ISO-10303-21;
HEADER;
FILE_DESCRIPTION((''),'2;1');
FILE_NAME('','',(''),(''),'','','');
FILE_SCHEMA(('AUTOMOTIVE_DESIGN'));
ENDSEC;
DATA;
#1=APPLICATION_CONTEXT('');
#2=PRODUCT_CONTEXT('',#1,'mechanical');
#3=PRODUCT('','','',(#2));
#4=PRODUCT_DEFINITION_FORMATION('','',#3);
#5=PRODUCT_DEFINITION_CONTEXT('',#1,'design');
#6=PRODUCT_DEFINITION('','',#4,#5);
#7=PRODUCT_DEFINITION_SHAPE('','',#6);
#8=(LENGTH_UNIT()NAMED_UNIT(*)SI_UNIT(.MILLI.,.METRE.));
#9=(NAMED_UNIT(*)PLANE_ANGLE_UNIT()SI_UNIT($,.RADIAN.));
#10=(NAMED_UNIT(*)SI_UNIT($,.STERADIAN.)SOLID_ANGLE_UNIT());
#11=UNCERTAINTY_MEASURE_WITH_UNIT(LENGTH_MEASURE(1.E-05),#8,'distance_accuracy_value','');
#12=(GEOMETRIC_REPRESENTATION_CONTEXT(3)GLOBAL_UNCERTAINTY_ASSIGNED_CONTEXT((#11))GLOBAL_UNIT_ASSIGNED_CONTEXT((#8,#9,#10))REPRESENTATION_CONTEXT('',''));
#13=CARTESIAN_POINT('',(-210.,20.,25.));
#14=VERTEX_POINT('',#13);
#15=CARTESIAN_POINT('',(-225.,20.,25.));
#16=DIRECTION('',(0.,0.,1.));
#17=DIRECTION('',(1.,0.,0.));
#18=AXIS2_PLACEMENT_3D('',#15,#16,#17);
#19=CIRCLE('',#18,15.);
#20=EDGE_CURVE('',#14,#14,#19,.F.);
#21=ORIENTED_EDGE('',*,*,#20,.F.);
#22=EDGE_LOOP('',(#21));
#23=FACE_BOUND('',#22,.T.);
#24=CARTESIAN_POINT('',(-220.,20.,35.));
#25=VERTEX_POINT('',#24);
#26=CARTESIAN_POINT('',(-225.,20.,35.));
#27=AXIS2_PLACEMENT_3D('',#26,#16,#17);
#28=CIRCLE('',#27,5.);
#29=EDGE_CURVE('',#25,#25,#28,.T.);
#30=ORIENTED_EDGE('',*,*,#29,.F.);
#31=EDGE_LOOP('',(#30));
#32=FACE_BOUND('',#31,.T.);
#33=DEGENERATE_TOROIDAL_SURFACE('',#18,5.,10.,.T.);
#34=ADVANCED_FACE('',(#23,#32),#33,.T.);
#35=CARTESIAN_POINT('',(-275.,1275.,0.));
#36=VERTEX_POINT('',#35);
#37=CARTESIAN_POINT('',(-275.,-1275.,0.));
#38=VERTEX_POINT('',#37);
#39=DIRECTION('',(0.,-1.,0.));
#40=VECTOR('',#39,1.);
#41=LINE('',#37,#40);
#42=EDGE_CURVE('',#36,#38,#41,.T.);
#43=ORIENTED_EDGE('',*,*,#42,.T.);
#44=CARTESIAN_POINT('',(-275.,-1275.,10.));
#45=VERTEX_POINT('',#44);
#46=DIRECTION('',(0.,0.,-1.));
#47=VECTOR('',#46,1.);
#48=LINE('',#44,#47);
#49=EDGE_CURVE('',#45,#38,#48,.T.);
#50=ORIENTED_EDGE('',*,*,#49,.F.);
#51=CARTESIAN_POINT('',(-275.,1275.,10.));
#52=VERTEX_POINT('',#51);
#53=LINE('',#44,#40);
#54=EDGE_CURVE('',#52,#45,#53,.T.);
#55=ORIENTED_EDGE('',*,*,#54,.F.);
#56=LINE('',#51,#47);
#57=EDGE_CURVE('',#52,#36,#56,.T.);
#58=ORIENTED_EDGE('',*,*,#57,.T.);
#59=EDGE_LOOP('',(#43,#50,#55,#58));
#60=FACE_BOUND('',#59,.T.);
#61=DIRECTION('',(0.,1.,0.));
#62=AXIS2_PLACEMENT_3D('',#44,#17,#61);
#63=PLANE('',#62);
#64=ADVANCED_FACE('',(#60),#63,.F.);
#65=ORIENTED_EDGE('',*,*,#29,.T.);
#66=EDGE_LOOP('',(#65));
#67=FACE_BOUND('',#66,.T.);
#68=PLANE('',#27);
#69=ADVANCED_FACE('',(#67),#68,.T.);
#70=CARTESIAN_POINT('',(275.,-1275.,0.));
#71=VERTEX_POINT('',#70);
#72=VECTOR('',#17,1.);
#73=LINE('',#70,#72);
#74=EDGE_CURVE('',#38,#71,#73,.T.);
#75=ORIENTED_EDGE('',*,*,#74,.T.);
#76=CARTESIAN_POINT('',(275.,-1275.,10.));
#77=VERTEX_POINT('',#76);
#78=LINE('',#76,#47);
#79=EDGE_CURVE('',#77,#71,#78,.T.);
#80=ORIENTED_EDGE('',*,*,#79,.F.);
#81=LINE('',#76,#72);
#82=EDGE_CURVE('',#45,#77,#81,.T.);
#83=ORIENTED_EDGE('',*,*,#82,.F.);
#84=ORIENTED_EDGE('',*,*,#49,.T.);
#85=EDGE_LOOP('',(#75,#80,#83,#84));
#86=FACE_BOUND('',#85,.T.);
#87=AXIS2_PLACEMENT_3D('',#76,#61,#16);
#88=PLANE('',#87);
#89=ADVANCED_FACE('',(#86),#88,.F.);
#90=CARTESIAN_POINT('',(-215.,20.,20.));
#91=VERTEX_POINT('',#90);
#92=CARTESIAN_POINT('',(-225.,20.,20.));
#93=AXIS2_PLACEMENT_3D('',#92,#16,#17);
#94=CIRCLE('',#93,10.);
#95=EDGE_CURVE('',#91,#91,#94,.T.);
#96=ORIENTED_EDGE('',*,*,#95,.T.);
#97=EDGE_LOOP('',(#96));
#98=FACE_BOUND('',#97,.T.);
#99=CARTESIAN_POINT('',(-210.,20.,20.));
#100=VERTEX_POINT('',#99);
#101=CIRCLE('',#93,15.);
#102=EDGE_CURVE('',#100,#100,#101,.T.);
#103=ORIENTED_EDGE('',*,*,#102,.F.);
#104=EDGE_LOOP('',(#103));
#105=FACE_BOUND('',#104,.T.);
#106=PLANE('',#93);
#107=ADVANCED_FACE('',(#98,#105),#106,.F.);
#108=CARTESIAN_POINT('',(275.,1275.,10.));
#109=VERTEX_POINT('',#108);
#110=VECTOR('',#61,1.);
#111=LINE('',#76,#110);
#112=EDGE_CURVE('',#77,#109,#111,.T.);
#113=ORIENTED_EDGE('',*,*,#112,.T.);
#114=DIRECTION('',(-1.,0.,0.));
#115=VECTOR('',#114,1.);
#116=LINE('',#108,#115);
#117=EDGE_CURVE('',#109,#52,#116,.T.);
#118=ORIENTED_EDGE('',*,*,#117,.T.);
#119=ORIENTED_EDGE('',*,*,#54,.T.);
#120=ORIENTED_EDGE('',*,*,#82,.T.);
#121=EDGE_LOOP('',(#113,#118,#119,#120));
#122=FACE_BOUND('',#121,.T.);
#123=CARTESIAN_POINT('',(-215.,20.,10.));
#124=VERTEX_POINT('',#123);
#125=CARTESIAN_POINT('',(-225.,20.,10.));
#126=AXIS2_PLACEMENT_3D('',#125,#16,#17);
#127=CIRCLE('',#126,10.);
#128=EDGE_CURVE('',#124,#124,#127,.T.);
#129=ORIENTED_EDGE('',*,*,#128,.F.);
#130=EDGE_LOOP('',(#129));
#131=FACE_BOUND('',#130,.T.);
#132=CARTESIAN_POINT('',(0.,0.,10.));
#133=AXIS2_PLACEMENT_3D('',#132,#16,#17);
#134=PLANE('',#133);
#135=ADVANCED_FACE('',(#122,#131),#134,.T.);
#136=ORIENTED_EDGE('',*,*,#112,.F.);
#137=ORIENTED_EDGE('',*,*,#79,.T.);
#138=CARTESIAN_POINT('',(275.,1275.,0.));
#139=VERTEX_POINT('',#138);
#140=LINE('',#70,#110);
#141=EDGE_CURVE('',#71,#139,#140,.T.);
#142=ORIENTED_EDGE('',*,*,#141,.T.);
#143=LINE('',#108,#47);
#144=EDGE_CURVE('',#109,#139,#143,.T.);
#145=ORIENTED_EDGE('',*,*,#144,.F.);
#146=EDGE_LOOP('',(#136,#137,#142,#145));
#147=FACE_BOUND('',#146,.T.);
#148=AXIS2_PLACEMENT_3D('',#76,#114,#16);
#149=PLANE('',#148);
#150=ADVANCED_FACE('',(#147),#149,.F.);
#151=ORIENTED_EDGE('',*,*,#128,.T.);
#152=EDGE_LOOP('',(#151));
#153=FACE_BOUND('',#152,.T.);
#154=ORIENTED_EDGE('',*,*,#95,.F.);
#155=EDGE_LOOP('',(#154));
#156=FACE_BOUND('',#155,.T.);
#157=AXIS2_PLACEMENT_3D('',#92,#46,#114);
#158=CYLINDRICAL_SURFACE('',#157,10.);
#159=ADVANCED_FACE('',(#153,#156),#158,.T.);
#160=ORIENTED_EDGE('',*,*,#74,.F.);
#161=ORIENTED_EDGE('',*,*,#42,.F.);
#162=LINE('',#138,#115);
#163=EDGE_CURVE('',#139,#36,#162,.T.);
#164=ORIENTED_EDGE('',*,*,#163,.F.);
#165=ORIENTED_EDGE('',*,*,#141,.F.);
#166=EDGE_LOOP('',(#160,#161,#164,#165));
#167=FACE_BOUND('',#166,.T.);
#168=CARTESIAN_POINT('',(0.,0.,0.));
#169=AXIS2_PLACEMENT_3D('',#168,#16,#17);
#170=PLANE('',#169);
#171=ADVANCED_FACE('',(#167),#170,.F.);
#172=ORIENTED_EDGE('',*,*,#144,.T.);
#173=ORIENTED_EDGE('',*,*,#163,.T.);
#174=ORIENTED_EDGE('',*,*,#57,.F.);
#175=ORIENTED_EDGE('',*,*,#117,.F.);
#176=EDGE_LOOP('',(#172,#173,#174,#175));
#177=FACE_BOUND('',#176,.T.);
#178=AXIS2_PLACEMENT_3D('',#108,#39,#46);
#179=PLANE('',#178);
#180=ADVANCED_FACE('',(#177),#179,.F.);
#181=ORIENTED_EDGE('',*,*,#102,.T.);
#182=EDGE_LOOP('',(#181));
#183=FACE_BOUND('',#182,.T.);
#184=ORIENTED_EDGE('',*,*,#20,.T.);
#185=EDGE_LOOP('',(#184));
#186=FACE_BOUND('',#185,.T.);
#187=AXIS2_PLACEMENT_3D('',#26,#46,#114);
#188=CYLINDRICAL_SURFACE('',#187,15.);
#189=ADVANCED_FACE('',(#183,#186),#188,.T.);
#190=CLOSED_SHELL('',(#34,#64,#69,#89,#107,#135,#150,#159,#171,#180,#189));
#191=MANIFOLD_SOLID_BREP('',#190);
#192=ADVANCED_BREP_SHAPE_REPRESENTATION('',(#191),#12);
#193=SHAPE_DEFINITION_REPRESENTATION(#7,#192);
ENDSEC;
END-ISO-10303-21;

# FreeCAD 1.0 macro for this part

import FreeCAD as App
import Part
import Sketcher
Q = App.Units.Quantity


def edges_at(feature, points):
    """Names of the edges that pass closest to the given points."""
    edges = feature.Shape.Edges
    near = lambda p: min(range(len(edges)), key=lambda i: edges[i].distToShape(Part.Vertex(*p))[0])
    return sorted({f"Edge{near(p) + 1}" for p in points})


def add_polygon(sketch, points):
    """Adds a closed chain of lines whose ends are joined by coincident constraints."""
    first, n = sketch.GeometryCount, len(points)
    for a, b in zip(points, points[1:] + points[:1]):
        sketch.addGeometry(Part.LineSegment(App.Vector(*a, 0), App.Vector(*b, 0)), False)
    for i in range(n):
        sketch.addConstraint(Sketcher.Constraint("Coincident", first + i, 2, first + (i + 1) % n, 1))

doc = App.newDocument("Part")
body = doc.addObject("PartDesign::Body", "Body")

# Sketch on XY plane
sketch1 = body.newObject("Sketcher::SketchObject", "Sketch")
sketch1.AttachmentSupport = (doc.getObject("XY_Plane"), [""])
sketch1.MapMode = "FlatFace"
add_polygon(sketch1, [(-275, 1275), (-275, -1275), (275, -1275), (275, 1275)])  # lines 0-3
sketch1.addConstraint(Sketcher.Constraint("Vertical", 0))
sketch1.addConstraint(Sketcher.Constraint("Horizontal", 1))
sketch1.addConstraint(Sketcher.Constraint("Vertical", 2))
sketch1.addConstraint(Sketcher.Constraint("Horizontal", 3))
sketch1.addConstraint(Sketcher.Constraint("Symmetric", 0, 2, 2, 2, -1, 1))
sketch1.addConstraint(Sketcher.Constraint("DistanceX", 1, 1, 1, 2, Q("550 mm")))
sketch1.addConstraint(Sketcher.Constraint("DistanceY", 0, 2, 0, 1, Q("2550 mm")))
pad1 = body.newObject("PartDesign::Pad", "Pad")
pad1.Profile = sketch1
pad1.Length = 10

# Sketch on XY plane
sketch2 = body.newObject("Sketcher::SketchObject", "Sketch001")
sketch2.AttachmentSupport = (doc.getObject("XY_Plane"), [""])
sketch2.MapMode = "FlatFace"
sketch2.AttachmentOffset = App.Placement(App.Vector(0, 0, 10), App.Rotation())
sketch2.addGeometry(Part.Circle(App.Vector(-225, 20, 0), App.Vector(0, 0, 1), 10), False)
sketch2.addConstraint(Sketcher.Constraint("Diameter", 0, Q("20 mm")))
sketch2.addConstraint(Sketcher.Constraint("DistanceX", 0, 3, -1, 1, Q("225 mm")))
sketch2.addConstraint(Sketcher.Constraint("DistanceY", -1, 1, 0, 3, Q("20 mm")))
pad2 = body.newObject("PartDesign::Pad", "Pad001")
pad2.Profile = sketch2
pad2.Length = 10

# Sketch on XY plane
sketch3 = body.newObject("Sketcher::SketchObject", "Sketch002")
sketch3.AttachmentSupport = (doc.getObject("XY_Plane"), [""])
sketch3.MapMode = "FlatFace"
sketch3.AttachmentOffset = App.Placement(App.Vector(0, 0, 20), App.Rotation())
sketch3.addGeometry(Part.Circle(App.Vector(-225, 20, 0), App.Vector(0, 0, 1), 15), False)
sketch3.addConstraint(Sketcher.Constraint("Diameter", 0, Q("30 mm")))
sketch3.addConstraint(Sketcher.Constraint("DistanceX", 0, 3, -1, 1, Q("225 mm")))
sketch3.addConstraint(Sketcher.Constraint("DistanceY", -1, 1, 0, 3, Q("20 mm")))
pad3 = body.newObject("PartDesign::Pad", "Pad002")
pad3.Profile = sketch3
pad3.Length = 15
doc.recompute()

fillet = body.newObject("PartDesign::Fillet", "Fillet")
fillet.Base = (pad3, edges_at(pad3, [(-240, 20, 35)]))
fillet.Radius = 10

doc.recompute()
